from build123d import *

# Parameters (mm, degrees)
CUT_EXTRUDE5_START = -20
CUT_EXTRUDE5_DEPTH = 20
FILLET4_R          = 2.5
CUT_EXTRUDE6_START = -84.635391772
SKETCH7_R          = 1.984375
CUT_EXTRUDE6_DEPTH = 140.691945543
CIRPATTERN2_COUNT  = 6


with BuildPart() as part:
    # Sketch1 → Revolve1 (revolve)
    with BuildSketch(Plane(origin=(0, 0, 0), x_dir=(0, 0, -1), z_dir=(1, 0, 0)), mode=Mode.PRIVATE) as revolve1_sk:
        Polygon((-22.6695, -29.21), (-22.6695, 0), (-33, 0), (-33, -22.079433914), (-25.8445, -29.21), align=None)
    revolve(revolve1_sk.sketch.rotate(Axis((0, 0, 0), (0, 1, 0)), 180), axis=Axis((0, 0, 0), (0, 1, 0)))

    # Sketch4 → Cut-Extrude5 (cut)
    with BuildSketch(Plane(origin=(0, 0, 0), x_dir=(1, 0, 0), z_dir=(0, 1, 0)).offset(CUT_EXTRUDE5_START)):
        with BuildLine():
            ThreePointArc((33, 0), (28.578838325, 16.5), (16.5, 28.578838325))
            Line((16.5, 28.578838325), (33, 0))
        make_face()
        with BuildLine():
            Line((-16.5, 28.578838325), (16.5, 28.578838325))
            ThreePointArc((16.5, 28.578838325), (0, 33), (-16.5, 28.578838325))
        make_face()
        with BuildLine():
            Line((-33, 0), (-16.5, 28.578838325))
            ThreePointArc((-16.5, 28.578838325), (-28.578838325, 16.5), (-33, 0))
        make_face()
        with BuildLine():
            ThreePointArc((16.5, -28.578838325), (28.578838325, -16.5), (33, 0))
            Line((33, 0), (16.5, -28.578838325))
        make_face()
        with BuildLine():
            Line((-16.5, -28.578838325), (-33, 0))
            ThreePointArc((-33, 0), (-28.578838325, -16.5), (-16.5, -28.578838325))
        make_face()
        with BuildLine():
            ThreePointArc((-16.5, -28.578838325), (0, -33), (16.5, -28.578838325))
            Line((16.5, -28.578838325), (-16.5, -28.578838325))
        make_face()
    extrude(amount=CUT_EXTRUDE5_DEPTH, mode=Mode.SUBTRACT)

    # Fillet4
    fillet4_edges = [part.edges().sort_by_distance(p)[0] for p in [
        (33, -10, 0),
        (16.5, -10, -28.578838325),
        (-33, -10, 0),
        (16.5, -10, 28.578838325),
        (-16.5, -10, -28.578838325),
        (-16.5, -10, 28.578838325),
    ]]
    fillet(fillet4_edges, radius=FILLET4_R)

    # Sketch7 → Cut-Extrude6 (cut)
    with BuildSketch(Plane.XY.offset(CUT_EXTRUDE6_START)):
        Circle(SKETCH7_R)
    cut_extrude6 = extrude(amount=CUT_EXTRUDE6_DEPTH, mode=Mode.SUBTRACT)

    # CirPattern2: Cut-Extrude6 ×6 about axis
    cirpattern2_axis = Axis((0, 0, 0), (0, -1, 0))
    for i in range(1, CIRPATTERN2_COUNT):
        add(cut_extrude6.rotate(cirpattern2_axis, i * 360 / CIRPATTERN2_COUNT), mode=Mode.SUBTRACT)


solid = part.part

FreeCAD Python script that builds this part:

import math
import FreeCAD as App
import Part
import Sketcher
Q = App.Units.Quantity


def edges_at(feature, points):
    """Names of the edges that pass closest to the given points."""
    edges = feature.Shape.Edges
    near = lambda p: min(range(len(edges)), key=lambda i: edges[i].distToShape(Part.Vertex(*p))[0])
    return sorted({f"Edge{near(p) + 1}" for p in points})


def add_polygon(sketch, points):
    """Adds a closed chain of lines whose ends are joined by coincident constraints."""
    first, n = sketch.GeometryCount, len(points)
    for a, b in zip(points, points[1:] + points[:1]):
        sketch.addGeometry(Part.LineSegment(App.Vector(*a, 0), App.Vector(*b, 0)), False)
    for i in range(n):
        sketch.addConstraint(Sketcher.Constraint("Coincident", first + i, 2, first + (i + 1) % n, 1))

doc = App.newDocument("Part")
body = doc.addObject("PartDesign::Body", "Body")

# Sketch on YZ plane
sketch1 = body.newObject("Sketcher::SketchObject", "Sketch")
sketch1.AttachmentSupport = (doc.getObject("YZ_Plane"), [""])
sketch1.MapMode = "FlatFace"
add_polygon(sketch1, [(-29.2, 22.7), (0, 22.7), (0, 33), (-22.1, 33), (-29.2, 25.8)])  # lines 0-4
sketch1.addConstraint([
    Sketcher.Constraint("Horizontal", 0),
    Sketcher.Constraint("Vertical", 1),
    Sketcher.Constraint("Horizontal", 2),
    Sketcher.Constraint("Vertical", 4),
    Sketcher.Constraint("PointOnObject", 0, 2, -2),
    Sketcher.Constraint("DistanceY", -1, 1, 1, 2, Q("33 mm")),
    Sketcher.Constraint("Angle", 3, Q("-134.9 deg")),
    Sketcher.Constraint("DistanceX", 0, 1, 0, 2, Q("29.21 mm")),
    Sketcher.Constraint("DistanceY", 4, 2, 4, 1, Q("3.175 mm")),
    Sketcher.Constraint("DistanceY", 1, 1, 1, 2, Q("10.3305 mm")),
])
revolution = body.newObject("PartDesign::Revolution", "Revolution")
revolution.Profile = sketch1
revolution.ReferenceAxis = (sketch1, ["H_Axis"])
revolution.Angle = 360

# Sketch on XZ plane
sketch2 = body.newObject("Sketcher::SketchObject", "Sketch001")
sketch2.AttachmentSupport = (doc.getObject("XZ_Plane"), [""])
sketch2.MapMode = "FlatFace"
sketch2.AttachmentOffset = App.Placement(App.Vector(0, 0, 20), App.Rotation())
sketch2.addGeometry([
    Part.ArcOfCircle(Part.Circle(App.Vector(0, 0, 0), App.Vector(0, 0, 1), 33), math.radians(-60), math.radians(0)),  # 0
    Part.LineSegment(App.Vector(16, -29, 0), App.Vector(33, 0, 0)),  # 1
    Part.LineSegment(App.Vector(-16, -29, 0), App.Vector(16, -29, 0)),  # 2
    Part.ArcOfCircle(Part.Circle(App.Vector(0, 0, 0), App.Vector(0, 0, 1), 33), math.radians(-120), math.radians(-60)),  # 3
    Part.LineSegment(App.Vector(-33, 0, 0), App.Vector(-16, -29, 0)),  # 4
    Part.ArcOfCircle(Part.Circle(App.Vector(0, 0, 0), App.Vector(0, 0, 1), 33), math.radians(180), math.radians(240)),  # 5
    Part.ArcOfCircle(Part.Circle(App.Vector(0, 0, 0), App.Vector(0, 0, 1), 33), math.radians(0), math.radians(60)),  # 6
    Part.LineSegment(App.Vector(33, 0, 0), App.Vector(16, 29, 0)),  # 7
    Part.LineSegment(App.Vector(-16, 29, 0), App.Vector(-33, 0, 0)),  # 8
    Part.ArcOfCircle(Part.Circle(App.Vector(0, 0, 0), App.Vector(0, 0, 1), 33), math.radians(120), math.radians(180)),  # 9
    Part.ArcOfCircle(Part.Circle(App.Vector(0, 0, 0), App.Vector(0, 0, 1), 33), math.radians(60), math.radians(120)),  # 10
    Part.LineSegment(App.Vector(16, 29, 0), App.Vector(-16, 29, 0)),  # 11
], False)
sketch2.addConstraint([
    Sketcher.Constraint("Coincident", 0, 1, 1, 1),
    Sketcher.Constraint("Coincident", 1, 2, 0, 2),
    Sketcher.Constraint("Coincident", 2, 1, 3, 1),
    Sketcher.Constraint("Coincident", 3, 2, 2, 2),
    Sketcher.Constraint("Coincident", 4, 1, 5, 1),
    Sketcher.Constraint("Coincident", 5, 2, 4, 2),
    Sketcher.Constraint("Coincident", 6, 1, 7, 1),
    Sketcher.Constraint("Coincident", 7, 2, 6, 2),
    Sketcher.Constraint("Coincident", 8, 1, 9, 1),
    Sketcher.Constraint("Coincident", 9, 2, 8, 2),
    Sketcher.Constraint("Coincident", 10, 1, 11, 1),
    Sketcher.Constraint("Coincident", 11, 2, 10, 2),
    Sketcher.Constraint("Horizontal", 2),
    Sketcher.Constraint("Horizontal", 11),
    Sketcher.Constraint("Coincident", 0, 3, -1, 1),
    Sketcher.Constraint("Coincident", 3, 3, -1, 1),
    Sketcher.Constraint("Coincident", 5, 3, -1, 1),
    Sketcher.Constraint("Coincident", 6, 3, -1, 1),
    Sketcher.Constraint("Coincident", 9, 3, -1, 1),
    Sketcher.Constraint("Coincident", 10, 3, -1, 1),
    Sketcher.Constraint("Coincident", 3, 2, 0, 1),
    Sketcher.Constraint("Coincident", 5, 2, 2, 1),
    Sketcher.Constraint("Coincident", 6, 1, 1, 2),
    Sketcher.Constraint("Coincident", 9, 2, 4, 1),
    Sketcher.Constraint("Coincident", 10, 1, 7, 2),
    Sketcher.Constraint("PointOnObject", 1, 2, -1),
    Sketcher.Constraint("PointOnObject", 4, 1, -1),
    Sketcher.Constraint("Parallel", 4, 7),
    Sketcher.Constraint("Parallel", 1, 8),
    Sketcher.Constraint("Radius", 0, Q("33 mm")),
    Sketcher.Constraint("DistanceX", 2, 1, 2, 2, Q("33 mm")),
])
pocket1 = body.newObject("PartDesign::Pocket", "Pocket")
pocket1.Profile = sketch2
pocket1.Length = 20
doc.recompute()

fillet = body.newObject("PartDesign::Fillet", "Fillet")
fillet.Base = (pocket1, edges_at(pocket1, [
    (33, -10, 0),
    (16.5, -10, -28.579),
    (-33, -10, 0),
    (16.5, -10, 28.579),
    (-16.5, -10, -28.579),
    (-16.5, -10, 28.579),
]))
fillet.Radius = 2.5

# Sketch on XY plane
sketch3 = body.newObject("Sketcher::SketchObject", "Sketch002")
sketch3.AttachmentSupport = (doc.getObject("XY_Plane"), [""])
sketch3.MapMode = "FlatFace"
sketch3.AttachmentOffset = App.Placement(App.Vector(0, 0, -84.635392), App.Rotation())
sketch3.addGeometry(Part.Circle(App.Vector(0, 0, 0), App.Vector(0, 0, 1), 2), False)
sketch3.addConstraint([
    Sketcher.Constraint("Coincident", 0, 3, -1, 1),
    Sketcher.Constraint("Diameter", 0, Q("3.96875 mm")),
])
pocket2 = body.newObject("PartDesign::Pocket", "Pocket001")
pocket2.Profile = sketch3
pocket2.Length = 140.691946
pocket2.Reversed = True
doc.recompute()

polarpattern = body.newObject("PartDesign::PolarPattern", "PolarPattern")
polarpattern.Originals = [pocket2]
polarpattern.Axis = (doc.getObject("Y_Axis"), [""])
polarpattern.Angle = 360
polarpattern.Occurrences = 6
body.Tip = polarpattern

doc.recompute()
